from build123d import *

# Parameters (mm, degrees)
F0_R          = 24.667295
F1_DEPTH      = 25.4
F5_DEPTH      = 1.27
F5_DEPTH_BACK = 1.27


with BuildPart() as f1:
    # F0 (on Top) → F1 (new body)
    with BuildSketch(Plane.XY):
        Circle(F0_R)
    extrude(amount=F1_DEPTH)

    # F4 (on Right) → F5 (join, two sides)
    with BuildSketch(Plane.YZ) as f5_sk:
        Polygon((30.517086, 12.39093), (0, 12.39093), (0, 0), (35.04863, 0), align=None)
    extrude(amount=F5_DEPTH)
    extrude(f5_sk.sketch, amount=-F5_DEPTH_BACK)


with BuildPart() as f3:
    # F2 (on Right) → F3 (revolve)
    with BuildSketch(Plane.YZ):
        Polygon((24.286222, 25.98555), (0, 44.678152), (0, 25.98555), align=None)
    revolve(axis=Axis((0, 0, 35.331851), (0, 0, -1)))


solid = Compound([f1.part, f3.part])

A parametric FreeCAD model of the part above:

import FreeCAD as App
import Part
import Sketcher
Q = App.Units.Quantity


def add_polygon(sketch, points):
    """Adds a closed chain of lines whose ends are joined by coincident constraints."""
    first, n = sketch.GeometryCount, len(points)
    for a, b in zip(points, points[1:] + points[:1]):
        sketch.addGeometry(Part.LineSegment(App.Vector(*a, 0), App.Vector(*b, 0)), False)
    for i in range(n):
        sketch.addConstraint(Sketcher.Constraint("Coincident", first + i, 2, first + (i + 1) % n, 1))

doc = App.newDocument("Part")
body = doc.addObject("PartDesign::Body", "Body")

# Sketch on XY plane
sketch1 = doc.addObject("Sketcher::SketchObject", "Sketch")
body.addObject(sketch1)
sketch1.AttachmentSupport = (doc.XY_Plane, [""])
sketch1.MapMode = "FlatFace"
sketch1.addGeometry(Part.Circle(App.Vector(0, 0, 0), App.Vector(0, 0, 1), 24.667295), False)
sketch1.addConstraint(Sketcher.Constraint("Coincident", 0, 3, -1, 1))
sketch1.addConstraint(Sketcher.Constraint("Diameter", 0, Q("49.33459 mm")))
pad1 = doc.addObject("PartDesign::Pad", "Pad")
body.addObject(pad1)
pad1.Profile = sketch1
pad1.Length = Q("1 in")

# Sketch on YZ plane
sketch2 = doc.addObject("Sketcher::SketchObject", "Sketch001")
body.addObject(sketch2)
sketch2.AttachmentSupport = (doc.YZ_Plane, [""])
sketch2.MapMode = "FlatFace"
add_polygon(sketch2, [(30.517086, 12.39093), (0, 12.39093), (0, 0), (35.04863, 0)])  # lines 0-3
sketch2.addConstraint(Sketcher.Constraint("Horizontal", 0))
sketch2.addConstraint(Sketcher.Constraint("Vertical", 1))
sketch2.addConstraint(Sketcher.Constraint("Horizontal", 2))
sketch2.addConstraint(Sketcher.Constraint("Coincident", 1, 2, -1, 1))
sketch2.addConstraint(Sketcher.Constraint("DistanceX", 2, 1, 2, 2, Q("35.04863 mm")))
sketch2.addConstraint(Sketcher.Constraint("DistanceY", 1, 2, 1, 1, Q("12.39093 mm")))
sketch2.addConstraint(Sketcher.Constraint("Distance", 3, Q("13.19356 mm")))
pad2 = doc.addObject("PartDesign::Pad", "Pad001")
body.addObject(pad2)
pad2.Profile = sketch2
pad2.Type = "TwoLengths"
pad2.Length = Q("0.05 in")
pad2.Length2 = Q("0.05 in")
body2 = doc.addObject("PartDesign::Body", "Body001")

# Sketch on YZ plane
sketch3 = doc.addObject("Sketcher::SketchObject", "Sketch002")
body2.addObject(sketch3)
sketch3.AttachmentSupport = (doc.getObject("YZ_Plane001"), [""])
sketch3.MapMode = "FlatFace"
add_polygon(sketch3, [(24.286222, 25.98555), (0, 44.678152), (0, 25.98555)])  # lines 0-2
sketch3.addConstraint(Sketcher.Constraint("Vertical", 1))
sketch3.addConstraint(Sketcher.Constraint("Horizontal", 2))
sketch3.addConstraint(Sketcher.Constraint("PointOnObject", 0, 2, -2))
sketch3.addConstraint(Sketcher.Constraint("DistanceY", 1, 2, 1, 1, Q("18.692602 mm")))
sketch3.addConstraint(Sketcher.Constraint("DistanceX", 2, 1, 2, 2, Q("24.286222 mm")))
sketch3.addConstraint(Sketcher.Constraint("DistanceY", -1, 1, 0, 2, Q("44.678152 mm")))
revolution = doc.addObject("PartDesign::Revolution", "Revolution")
body2.addObject(revolution)
revolution.Profile = sketch3
revolution.ReferenceAxis = (sketch3, ["V_Axis"])
revolution.Angle = 360

doc.recompute()
